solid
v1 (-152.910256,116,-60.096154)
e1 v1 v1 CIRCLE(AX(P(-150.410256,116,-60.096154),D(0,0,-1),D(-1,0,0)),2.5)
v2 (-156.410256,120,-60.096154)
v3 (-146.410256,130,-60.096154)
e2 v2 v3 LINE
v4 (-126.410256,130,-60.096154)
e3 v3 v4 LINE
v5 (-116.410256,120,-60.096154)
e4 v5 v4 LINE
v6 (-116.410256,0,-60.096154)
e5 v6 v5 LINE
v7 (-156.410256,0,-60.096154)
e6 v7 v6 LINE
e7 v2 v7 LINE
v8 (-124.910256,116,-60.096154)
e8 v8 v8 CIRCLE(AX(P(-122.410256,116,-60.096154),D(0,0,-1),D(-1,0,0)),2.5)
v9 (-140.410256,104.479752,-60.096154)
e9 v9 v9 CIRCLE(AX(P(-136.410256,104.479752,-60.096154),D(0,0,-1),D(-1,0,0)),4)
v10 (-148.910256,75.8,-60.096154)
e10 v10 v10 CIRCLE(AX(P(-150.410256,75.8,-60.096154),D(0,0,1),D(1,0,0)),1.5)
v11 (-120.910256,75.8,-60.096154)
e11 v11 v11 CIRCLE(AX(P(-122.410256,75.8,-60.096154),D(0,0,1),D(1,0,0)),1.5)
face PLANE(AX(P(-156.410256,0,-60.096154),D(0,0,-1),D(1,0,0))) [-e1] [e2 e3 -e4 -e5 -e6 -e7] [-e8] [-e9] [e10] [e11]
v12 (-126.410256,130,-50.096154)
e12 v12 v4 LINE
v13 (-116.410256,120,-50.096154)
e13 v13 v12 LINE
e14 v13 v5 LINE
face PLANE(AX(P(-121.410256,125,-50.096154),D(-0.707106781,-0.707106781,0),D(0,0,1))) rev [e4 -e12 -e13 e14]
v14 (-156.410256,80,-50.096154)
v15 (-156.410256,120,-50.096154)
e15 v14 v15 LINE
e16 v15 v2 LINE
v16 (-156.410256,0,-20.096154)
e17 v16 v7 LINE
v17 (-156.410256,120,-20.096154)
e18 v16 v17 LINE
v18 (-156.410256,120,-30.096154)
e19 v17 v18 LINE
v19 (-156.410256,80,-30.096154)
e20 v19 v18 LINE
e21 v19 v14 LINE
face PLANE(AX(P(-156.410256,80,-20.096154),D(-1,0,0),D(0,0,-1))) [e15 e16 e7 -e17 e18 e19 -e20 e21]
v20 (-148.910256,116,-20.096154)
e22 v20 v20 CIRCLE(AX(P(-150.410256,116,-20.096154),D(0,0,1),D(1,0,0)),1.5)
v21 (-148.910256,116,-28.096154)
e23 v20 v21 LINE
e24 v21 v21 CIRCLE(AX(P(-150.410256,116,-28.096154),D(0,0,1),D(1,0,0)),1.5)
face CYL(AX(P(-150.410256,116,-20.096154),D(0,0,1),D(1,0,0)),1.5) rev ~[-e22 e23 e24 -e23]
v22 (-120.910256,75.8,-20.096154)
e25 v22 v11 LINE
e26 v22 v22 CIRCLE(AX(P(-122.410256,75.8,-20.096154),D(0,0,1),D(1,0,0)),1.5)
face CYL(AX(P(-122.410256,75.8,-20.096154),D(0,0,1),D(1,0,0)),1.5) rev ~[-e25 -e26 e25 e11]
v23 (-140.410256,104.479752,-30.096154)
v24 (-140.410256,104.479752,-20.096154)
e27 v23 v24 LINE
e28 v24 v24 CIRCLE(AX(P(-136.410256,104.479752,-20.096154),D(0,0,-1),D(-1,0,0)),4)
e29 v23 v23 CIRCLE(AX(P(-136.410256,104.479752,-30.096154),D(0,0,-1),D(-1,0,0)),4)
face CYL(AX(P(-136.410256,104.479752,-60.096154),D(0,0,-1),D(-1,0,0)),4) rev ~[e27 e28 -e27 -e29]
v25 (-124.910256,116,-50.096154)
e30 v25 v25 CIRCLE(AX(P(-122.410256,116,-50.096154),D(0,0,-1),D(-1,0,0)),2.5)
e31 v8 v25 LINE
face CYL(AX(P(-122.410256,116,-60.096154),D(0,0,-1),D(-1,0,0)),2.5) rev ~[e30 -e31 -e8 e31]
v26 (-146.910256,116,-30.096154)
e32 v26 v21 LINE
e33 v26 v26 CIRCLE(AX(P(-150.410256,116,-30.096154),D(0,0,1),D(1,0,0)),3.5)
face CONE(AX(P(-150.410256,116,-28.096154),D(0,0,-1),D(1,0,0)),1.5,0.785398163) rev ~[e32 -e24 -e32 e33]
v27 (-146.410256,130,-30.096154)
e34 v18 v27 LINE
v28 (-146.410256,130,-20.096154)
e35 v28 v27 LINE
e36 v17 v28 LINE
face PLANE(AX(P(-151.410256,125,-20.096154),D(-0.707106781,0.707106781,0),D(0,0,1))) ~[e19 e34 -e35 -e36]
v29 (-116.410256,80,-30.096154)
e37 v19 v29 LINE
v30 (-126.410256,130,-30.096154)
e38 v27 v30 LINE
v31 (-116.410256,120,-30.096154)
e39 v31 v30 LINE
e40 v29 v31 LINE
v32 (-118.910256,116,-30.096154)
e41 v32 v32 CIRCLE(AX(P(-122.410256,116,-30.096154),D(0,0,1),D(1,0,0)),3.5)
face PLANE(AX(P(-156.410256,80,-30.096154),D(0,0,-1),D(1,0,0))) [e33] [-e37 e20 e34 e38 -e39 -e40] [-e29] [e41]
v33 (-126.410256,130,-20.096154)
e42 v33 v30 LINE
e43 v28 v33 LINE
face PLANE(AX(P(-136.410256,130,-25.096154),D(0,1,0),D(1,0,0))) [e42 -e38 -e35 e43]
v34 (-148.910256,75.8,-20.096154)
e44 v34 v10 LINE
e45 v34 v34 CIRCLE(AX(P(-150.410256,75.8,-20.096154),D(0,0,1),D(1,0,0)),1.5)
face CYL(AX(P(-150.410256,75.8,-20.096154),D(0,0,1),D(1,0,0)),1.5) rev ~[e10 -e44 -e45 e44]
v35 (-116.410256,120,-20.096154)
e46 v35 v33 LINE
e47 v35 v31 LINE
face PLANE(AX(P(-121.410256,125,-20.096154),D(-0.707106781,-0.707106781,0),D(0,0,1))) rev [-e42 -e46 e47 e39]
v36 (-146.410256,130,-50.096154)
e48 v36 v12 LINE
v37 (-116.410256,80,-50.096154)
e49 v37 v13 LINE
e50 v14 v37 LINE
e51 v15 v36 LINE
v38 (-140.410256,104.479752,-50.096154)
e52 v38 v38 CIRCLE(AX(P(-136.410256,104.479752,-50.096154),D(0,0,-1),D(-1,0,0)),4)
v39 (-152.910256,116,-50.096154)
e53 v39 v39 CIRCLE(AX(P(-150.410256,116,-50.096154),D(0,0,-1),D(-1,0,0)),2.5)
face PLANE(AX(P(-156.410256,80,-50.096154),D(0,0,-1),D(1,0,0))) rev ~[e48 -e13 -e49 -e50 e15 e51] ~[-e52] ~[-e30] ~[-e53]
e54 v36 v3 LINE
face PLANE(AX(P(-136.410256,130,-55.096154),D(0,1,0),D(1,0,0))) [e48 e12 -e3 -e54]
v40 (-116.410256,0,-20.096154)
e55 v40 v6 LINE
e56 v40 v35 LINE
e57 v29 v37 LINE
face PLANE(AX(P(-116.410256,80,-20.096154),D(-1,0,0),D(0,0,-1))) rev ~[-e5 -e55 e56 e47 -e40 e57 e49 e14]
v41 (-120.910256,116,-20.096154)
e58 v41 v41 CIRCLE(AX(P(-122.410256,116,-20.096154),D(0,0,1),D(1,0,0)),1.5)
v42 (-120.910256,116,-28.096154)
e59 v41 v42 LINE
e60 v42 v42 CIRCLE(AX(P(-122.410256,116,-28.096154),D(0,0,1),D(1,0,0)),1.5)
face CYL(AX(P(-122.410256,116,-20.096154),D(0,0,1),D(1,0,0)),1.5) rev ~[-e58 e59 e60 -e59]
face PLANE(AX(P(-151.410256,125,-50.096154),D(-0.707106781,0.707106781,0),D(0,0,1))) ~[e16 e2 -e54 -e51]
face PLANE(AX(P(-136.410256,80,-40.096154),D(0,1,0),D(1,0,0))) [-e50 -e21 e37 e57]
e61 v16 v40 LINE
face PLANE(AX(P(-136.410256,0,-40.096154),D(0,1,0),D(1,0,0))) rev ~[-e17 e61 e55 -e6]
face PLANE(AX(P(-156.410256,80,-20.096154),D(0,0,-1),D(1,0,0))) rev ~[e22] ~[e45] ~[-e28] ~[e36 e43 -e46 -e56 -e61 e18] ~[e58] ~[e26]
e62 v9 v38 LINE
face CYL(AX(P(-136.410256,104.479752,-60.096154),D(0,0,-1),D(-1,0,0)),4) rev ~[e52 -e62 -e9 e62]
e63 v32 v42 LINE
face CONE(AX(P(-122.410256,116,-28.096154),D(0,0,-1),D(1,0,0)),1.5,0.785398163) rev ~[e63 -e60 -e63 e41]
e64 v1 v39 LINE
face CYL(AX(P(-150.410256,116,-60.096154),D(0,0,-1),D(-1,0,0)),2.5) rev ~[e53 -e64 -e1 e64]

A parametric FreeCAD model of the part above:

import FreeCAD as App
import Part
import Sketcher
from FreeCAD import Vector
Q = App.Units.Quantity


def edges_at(feature, points):
    """Names of the edges that pass closest to the given points."""
    edges = feature.Shape.Edges
    near = lambda p: min(range(len(edges)), key=lambda i: edges[i].distToShape(Part.Vertex(*p))[0])
    return sorted({f"Edge{near(p) + 1}" for p in points})

doc = App.newDocument("Part")
params = doc.addObject("Spreadsheet::Sheet", "Params")
for row, (alias, value) in enumerate([
    ("sketch1_width", "40 mm"),
    ("pad1_length", "80 mm"),
    ("sketch2_width", "40 mm"),
    ("sketch2_height", "10 mm"),
    ("pad2_length", "50 mm"),
    ("chamfer_size", "10 mm"),
    ("sketch3_diameter", "8 mm"),
    ("pocket1_length", "60 mm"),
    ("sketch4_diameter", "3 mm"),
    ("pocket2_length", "60 mm"),
    ("chamfer2_size", "2 mm"),
    ("sketch5_diameter", "5 mm"),
    ("pocket3_length", "20 mm"),
], start=1):
    params.set(f"A{row}", alias)
    params.set(f"B{row}", "=" + value)
    params.setAlias(f"B{row}", alias)

body = doc.addObject("PartDesign::Body", "Body")

# Sketch on XZ plane
sketch1 = doc.addObject("Sketcher::SketchObject", "Sketch")
body.addObject(sketch1)
sketch1.AttachmentSupport = (doc.XZ_Plane, [""])
sketch1.MapMode = "FlatFace"
sketch1.addGeometry(Part.LineSegment(Vector(-156.410256, -60.096154, 0), Vector(-156.410256, -20.096154, 0)), False)
sketch1.addGeometry(Part.LineSegment(Vector(-156.410256, -20.096154, 0), Vector(-116.410256, -20.096154, 0)), False)
sketch1.addGeometry(Part.LineSegment(Vector(-116.410256, -20.096154, 0), Vector(-116.410256, -60.096154, 0)), False)
sketch1.addGeometry(Part.LineSegment(Vector(-116.410256, -60.096154, 0), Vector(-156.410256, -60.096154, 0)), False)
sketch1.addConstraint(Sketcher.Constraint("Coincident", 0, 2, 1, 1))
sketch1.addConstraint(Sketcher.Constraint("Coincident", 1, 2, 2, 1))
sketch1.addConstraint(Sketcher.Constraint("Coincident", 2, 2, 3, 1))
sketch1.addConstraint(Sketcher.Constraint("Coincident", 3, 2, 0, 1))
sketch1.addConstraint(Sketcher.Constraint("Vertical", 0))
sketch1.addConstraint(Sketcher.Constraint("Horizontal", 1))
sketch1.addConstraint(Sketcher.Constraint("Vertical", 2))
sketch1.addConstraint(Sketcher.Constraint("Horizontal", 3))
sketch1.addConstraint(Sketcher.Constraint("Equal", 3, 0))
sketch1.addConstraint(Sketcher.Constraint("DistanceX", 1, 1, 1, 2, Q("40 mm")))
sketch1.addConstraint(Sketcher.Constraint("DistanceX", 0, 2, -1, 1, Q("156.410256 mm")))
sketch1.addConstraint(Sketcher.Constraint("DistanceY", 0, 2, -1, 1, Q("20.096154 mm")))
sketch1.setExpression("Constraints[9]", "Params.sketch1_width")
pad1 = doc.addObject("PartDesign::Pad", "Pad")
body.addObject(pad1)
pad1.Profile = sketch1
pad1.setExpression("Length", "Params.pad1_length")
pad1.Reversed = True

# Sketch on XZ plane
sketch2 = doc.addObject("Sketcher::SketchObject", "Sketch001")
body.addObject(sketch2)
sketch2.AttachmentSupport = (doc.XZ_Plane, [""])
sketch2.MapMode = "FlatFace"
sketch2.AttachmentOffset = App.Placement(Vector(0, 0, -80), App.Rotation())
sketch2.addGeometry(Part.LineSegment(Vector(-156.410256, -30.096154, 0), Vector(-156.410256, -20.096154, 0)), False)
sketch2.addGeometry(Part.LineSegment(Vector(-156.410256, -20.096154, 0), Vector(-116.410256, -20.096154, 0)), False)
sketch2.addGeometry(Part.LineSegment(Vector(-116.410256, -20.096154, 0), Vector(-116.410256, -30.096154, 0)), False)
sketch2.addGeometry(Part.LineSegment(Vector(-116.410256, -30.096154, 0), Vector(-156.410256, -30.096154, 0)), False)
sketch2.addGeometry(Part.LineSegment(Vector(-156.410256, -60.096154, 0), Vector(-156.410256, -50.096154, 0)), False)
sketch2.addGeometry(Part.LineSegment(Vector(-156.410256, -50.096154, 0), Vector(-116.410256, -50.096154, 0)), False)
sketch2.addGeometry(Part.LineSegment(Vector(-116.410256, -50.096154, 0), Vector(-116.410256, -60.096154, 0)), False)
sketch2.addGeometry(Part.LineSegment(Vector(-116.410256, -60.096154, 0), Vector(-156.410256, -60.096154, 0)), False)
sketch2.addConstraint(Sketcher.Constraint("Coincident", 0, 2, 1, 1))
sketch2.addConstraint(Sketcher.Constraint("Coincident", 1, 2, 2, 1))
sketch2.addConstraint(Sketcher.Constraint("Coincident", 2, 2, 3, 1))
sketch2.addConstraint(Sketcher.Constraint("Coincident", 3, 2, 0, 1))
sketch2.addConstraint(Sketcher.Constraint("Coincident", 4, 2, 5, 1))
sketch2.addConstraint(Sketcher.Constraint("Coincident", 5, 2, 6, 1))
sketch2.addConstraint(Sketcher.Constraint("Coincident", 6, 2, 7, 1))
sketch2.addConstraint(Sketcher.Constraint("Coincident", 7, 2, 4, 1))
sketch2.addConstraint(Sketcher.Constraint("Vertical", 0))
sketch2.addConstraint(Sketcher.Constraint("Horizontal", 1))
sketch2.addConstraint(Sketcher.Constraint("Vertical", 2))
sketch2.addConstraint(Sketcher.Constraint("Horizontal", 3))
sketch2.addConstraint(Sketcher.Constraint("Vertical", 4))
sketch2.addConstraint(Sketcher.Constraint("Horizontal", 5))
sketch2.addConstraint(Sketcher.Constraint("Vertical", 6))
sketch2.addConstraint(Sketcher.Constraint("Horizontal", 7))
sketch2.addConstraint(Sketcher.Constraint("Vertical", 3, 2, 4, 2))
sketch2.addConstraint(Sketcher.Constraint("Vertical", 2, 2, 5, 2))
sketch2.addConstraint(Sketcher.Constraint("Equal", 2, 4))
sketch2.addConstraint(Sketcher.Constraint("DistanceX", 1, 1, 1, 2, Q("40 mm")))
sketch2.addConstraint(Sketcher.Constraint("DistanceY", 0, 1, 0, 2, Q("10 mm")))
sketch2.addConstraint(Sketcher.Constraint("DistanceY", 4, 2, 3, 2, Q("20 mm")))
sketch2.addConstraint(Sketcher.Constraint("DistanceX", 0, 2, -1, 1, Q("156.410256 mm")))
sketch2.addConstraint(Sketcher.Constraint("DistanceY", 0, 2, -1, 1, Q("20.096154 mm")))
sketch2.setExpression("Constraints[19]", "Params.sketch2_width")
sketch2.setExpression("Constraints[20]", "Params.sketch2_height")
pad2 = doc.addObject("PartDesign::Pad", "Pad001")
body.addObject(pad2)
pad2.Profile = sketch2
pad2.setExpression("Length", "Params.pad2_length")
pad2.Reversed = True
doc.recompute()

chamfer = doc.addObject("PartDesign::Chamfer", "Chamfer")
body.addObject(chamfer)
chamfer.Base = (pad2, edges_at(pad2, [
    (-156.41, 130, -25.096),
    (-116.41, 130, -25.096),
    (-156.41, 130, -55.096),
    (-116.41, 130, -55.096),
]))
chamfer.setExpression("Size", "Params.chamfer_size")

# Sketch on XY plane
sketch3 = doc.addObject("Sketcher::SketchObject", "Sketch002")
body.addObject(sketch3)
sketch3.AttachmentSupport = (doc.XY_Plane, [""])
sketch3.MapMode = "FlatFace"
sketch3.AttachmentOffset = App.Placement(Vector(0, 0, -60.096154), App.Rotation())
sketch3.addGeometry(Part.Circle(Vector(-136.410256, 104.479752, 0), Vector(0, 0, 1), 4), False)
sketch3.addConstraint(Sketcher.Constraint("Diameter", 0, Q("8 mm")))
sketch3.addConstraint(Sketcher.Constraint("DistanceX", 0, 3, -1, 1, Q("136.410256 mm")))
sketch3.addConstraint(Sketcher.Constraint("DistanceY", -1, 1, 0, 3, Q("104.479752 mm")))
sketch3.setExpression("Constraints[0]", "Params.sketch3_diameter")
pocket1 = doc.addObject("PartDesign::Pocket", "Pocket")
body.addObject(pocket1)
pocket1.Profile = sketch3
pocket1.setExpression("Length", "Params.pocket1_length")
pocket1.Reversed = True

# Sketch on XY plane
sketch4 = doc.addObject("Sketcher::SketchObject", "Sketch003")
body.addObject(sketch4)
sketch4.AttachmentSupport = (doc.XY_Plane, [""])
sketch4.MapMode = "FlatFace"
sketch4.AttachmentOffset = App.Placement(Vector(0, 0, -20.096154), App.Rotation())
sketch4.addGeometry(Part.Circle(Vector(-150.410256, 75.8, 0), Vector(0, 0, 1), 1.5), False)
sketch4.addGeometry(Part.Circle(Vector(-150.410256, 116, 0), Vector(0, 0, 1), 1.5), False)
sketch4.addGeometry(Part.Circle(Vector(-122.410256, 116, 0), Vector(0, 0, 1), 1.5), False)
sketch4.addGeometry(Part.Circle(Vector(-122.410256, 75.8, 0), Vector(0, 0, 1), 1.5), False)
sketch4.addConstraint(Sketcher.Constraint("Equal", 0, 1))
sketch4.addConstraint(Sketcher.Constraint("Equal", 1, 2))
sketch4.addConstraint(Sketcher.Constraint("Equal", 2, 3))
sketch4.addConstraint(Sketcher.Constraint("Horizontal", 1, 3, 2, 3))
sketch4.addConstraint(Sketcher.Constraint("Horizontal", 0, 3, 3, 3))
sketch4.addConstraint(Sketcher.Constraint("Vertical", 0, 3, 1, 3))
sketch4.addConstraint(Sketcher.Constraint("Vertical", 2, 3, 3, 3))
sketch4.addConstraint(Sketcher.Constraint("Diameter", 0, Q("3 mm")))
sketch4.addConstraint(Sketcher.Constraint("DistanceY", -1, 1, 1, 3, Q("116 mm")))
sketch4.addConstraint(Sketcher.Constraint("DistanceX", 1, 3, 2, 3, Q("28 mm")))
sketch4.addConstraint(Sketcher.Constraint("DistanceY", -1, 1, 0, 3, Q("75.8 mm")))
sketch4.addConstraint(Sketcher.Constraint("DistanceX", 0, 3, -1, 1, Q("150.410256 mm")))
sketch4.setExpression("Constraints[7]", "Params.sketch4_diameter")
pocket2 = doc.addObject("PartDesign::Pocket", "Pocket001")
body.addObject(pocket2)
pocket2.Profile = sketch4
pocket2.setExpression("Length", "Params.pocket2_length")
doc.recompute()

chamfer2 = doc.addObject("PartDesign::Chamfer", "Chamfer001")
body.addObject(chamfer2)
chamfer2.Base = (pocket2, edges_at(pocket2, [(-123.91, 116, -30.096), (-151.91, 116, -30.096)]))
chamfer2.setExpression("Size", "Params.chamfer2_size")

# Sketch on XY plane
sketch5 = doc.addObject("Sketcher::SketchObject", "Sketch004")
body.addObject(sketch5)
sketch5.AttachmentSupport = (doc.XY_Plane, [""])
sketch5.MapMode = "FlatFace"
sketch5.AttachmentOffset = App.Placement(Vector(0, 0, -60.096154), App.Rotation())
sketch5.addGeometry(Part.Circle(Vector(-150.410256, 116, 0), Vector(0, 0, 1), 2.5), False)
sketch5.addGeometry(Part.Circle(Vector(-122.410256, 116, 0), Vector(0, 0, 1), 2.5), False)
sketch5.addConstraint(Sketcher.Constraint("Equal", 0, 1))
sketch5.addConstraint(Sketcher.Constraint("Horizontal", 0, 3, 1, 3))
sketch5.addConstraint(Sketcher.Constraint("Diameter", 0, Q("5 mm")))
sketch5.addConstraint(Sketcher.Constraint("DistanceY", -1, 1, 0, 3, Q("116 mm")))
sketch5.addConstraint(Sketcher.Constraint("DistanceX", 0, 3, 1, 3, Q("28 mm")))
sketch5.addConstraint(Sketcher.Constraint("DistanceX", 0, 3, -1, 1, Q("150.410256 mm")))
sketch5.setExpression("Constraints[2]", "Params.sketch5_diameter")
pocket3 = doc.addObject("PartDesign::Pocket", "Pocket002")
body.addObject(pocket3)
pocket3.Profile = sketch5
pocket3.setExpression("Length", "Params.pocket3_length")
pocket3.Reversed = True

doc.recompute()
